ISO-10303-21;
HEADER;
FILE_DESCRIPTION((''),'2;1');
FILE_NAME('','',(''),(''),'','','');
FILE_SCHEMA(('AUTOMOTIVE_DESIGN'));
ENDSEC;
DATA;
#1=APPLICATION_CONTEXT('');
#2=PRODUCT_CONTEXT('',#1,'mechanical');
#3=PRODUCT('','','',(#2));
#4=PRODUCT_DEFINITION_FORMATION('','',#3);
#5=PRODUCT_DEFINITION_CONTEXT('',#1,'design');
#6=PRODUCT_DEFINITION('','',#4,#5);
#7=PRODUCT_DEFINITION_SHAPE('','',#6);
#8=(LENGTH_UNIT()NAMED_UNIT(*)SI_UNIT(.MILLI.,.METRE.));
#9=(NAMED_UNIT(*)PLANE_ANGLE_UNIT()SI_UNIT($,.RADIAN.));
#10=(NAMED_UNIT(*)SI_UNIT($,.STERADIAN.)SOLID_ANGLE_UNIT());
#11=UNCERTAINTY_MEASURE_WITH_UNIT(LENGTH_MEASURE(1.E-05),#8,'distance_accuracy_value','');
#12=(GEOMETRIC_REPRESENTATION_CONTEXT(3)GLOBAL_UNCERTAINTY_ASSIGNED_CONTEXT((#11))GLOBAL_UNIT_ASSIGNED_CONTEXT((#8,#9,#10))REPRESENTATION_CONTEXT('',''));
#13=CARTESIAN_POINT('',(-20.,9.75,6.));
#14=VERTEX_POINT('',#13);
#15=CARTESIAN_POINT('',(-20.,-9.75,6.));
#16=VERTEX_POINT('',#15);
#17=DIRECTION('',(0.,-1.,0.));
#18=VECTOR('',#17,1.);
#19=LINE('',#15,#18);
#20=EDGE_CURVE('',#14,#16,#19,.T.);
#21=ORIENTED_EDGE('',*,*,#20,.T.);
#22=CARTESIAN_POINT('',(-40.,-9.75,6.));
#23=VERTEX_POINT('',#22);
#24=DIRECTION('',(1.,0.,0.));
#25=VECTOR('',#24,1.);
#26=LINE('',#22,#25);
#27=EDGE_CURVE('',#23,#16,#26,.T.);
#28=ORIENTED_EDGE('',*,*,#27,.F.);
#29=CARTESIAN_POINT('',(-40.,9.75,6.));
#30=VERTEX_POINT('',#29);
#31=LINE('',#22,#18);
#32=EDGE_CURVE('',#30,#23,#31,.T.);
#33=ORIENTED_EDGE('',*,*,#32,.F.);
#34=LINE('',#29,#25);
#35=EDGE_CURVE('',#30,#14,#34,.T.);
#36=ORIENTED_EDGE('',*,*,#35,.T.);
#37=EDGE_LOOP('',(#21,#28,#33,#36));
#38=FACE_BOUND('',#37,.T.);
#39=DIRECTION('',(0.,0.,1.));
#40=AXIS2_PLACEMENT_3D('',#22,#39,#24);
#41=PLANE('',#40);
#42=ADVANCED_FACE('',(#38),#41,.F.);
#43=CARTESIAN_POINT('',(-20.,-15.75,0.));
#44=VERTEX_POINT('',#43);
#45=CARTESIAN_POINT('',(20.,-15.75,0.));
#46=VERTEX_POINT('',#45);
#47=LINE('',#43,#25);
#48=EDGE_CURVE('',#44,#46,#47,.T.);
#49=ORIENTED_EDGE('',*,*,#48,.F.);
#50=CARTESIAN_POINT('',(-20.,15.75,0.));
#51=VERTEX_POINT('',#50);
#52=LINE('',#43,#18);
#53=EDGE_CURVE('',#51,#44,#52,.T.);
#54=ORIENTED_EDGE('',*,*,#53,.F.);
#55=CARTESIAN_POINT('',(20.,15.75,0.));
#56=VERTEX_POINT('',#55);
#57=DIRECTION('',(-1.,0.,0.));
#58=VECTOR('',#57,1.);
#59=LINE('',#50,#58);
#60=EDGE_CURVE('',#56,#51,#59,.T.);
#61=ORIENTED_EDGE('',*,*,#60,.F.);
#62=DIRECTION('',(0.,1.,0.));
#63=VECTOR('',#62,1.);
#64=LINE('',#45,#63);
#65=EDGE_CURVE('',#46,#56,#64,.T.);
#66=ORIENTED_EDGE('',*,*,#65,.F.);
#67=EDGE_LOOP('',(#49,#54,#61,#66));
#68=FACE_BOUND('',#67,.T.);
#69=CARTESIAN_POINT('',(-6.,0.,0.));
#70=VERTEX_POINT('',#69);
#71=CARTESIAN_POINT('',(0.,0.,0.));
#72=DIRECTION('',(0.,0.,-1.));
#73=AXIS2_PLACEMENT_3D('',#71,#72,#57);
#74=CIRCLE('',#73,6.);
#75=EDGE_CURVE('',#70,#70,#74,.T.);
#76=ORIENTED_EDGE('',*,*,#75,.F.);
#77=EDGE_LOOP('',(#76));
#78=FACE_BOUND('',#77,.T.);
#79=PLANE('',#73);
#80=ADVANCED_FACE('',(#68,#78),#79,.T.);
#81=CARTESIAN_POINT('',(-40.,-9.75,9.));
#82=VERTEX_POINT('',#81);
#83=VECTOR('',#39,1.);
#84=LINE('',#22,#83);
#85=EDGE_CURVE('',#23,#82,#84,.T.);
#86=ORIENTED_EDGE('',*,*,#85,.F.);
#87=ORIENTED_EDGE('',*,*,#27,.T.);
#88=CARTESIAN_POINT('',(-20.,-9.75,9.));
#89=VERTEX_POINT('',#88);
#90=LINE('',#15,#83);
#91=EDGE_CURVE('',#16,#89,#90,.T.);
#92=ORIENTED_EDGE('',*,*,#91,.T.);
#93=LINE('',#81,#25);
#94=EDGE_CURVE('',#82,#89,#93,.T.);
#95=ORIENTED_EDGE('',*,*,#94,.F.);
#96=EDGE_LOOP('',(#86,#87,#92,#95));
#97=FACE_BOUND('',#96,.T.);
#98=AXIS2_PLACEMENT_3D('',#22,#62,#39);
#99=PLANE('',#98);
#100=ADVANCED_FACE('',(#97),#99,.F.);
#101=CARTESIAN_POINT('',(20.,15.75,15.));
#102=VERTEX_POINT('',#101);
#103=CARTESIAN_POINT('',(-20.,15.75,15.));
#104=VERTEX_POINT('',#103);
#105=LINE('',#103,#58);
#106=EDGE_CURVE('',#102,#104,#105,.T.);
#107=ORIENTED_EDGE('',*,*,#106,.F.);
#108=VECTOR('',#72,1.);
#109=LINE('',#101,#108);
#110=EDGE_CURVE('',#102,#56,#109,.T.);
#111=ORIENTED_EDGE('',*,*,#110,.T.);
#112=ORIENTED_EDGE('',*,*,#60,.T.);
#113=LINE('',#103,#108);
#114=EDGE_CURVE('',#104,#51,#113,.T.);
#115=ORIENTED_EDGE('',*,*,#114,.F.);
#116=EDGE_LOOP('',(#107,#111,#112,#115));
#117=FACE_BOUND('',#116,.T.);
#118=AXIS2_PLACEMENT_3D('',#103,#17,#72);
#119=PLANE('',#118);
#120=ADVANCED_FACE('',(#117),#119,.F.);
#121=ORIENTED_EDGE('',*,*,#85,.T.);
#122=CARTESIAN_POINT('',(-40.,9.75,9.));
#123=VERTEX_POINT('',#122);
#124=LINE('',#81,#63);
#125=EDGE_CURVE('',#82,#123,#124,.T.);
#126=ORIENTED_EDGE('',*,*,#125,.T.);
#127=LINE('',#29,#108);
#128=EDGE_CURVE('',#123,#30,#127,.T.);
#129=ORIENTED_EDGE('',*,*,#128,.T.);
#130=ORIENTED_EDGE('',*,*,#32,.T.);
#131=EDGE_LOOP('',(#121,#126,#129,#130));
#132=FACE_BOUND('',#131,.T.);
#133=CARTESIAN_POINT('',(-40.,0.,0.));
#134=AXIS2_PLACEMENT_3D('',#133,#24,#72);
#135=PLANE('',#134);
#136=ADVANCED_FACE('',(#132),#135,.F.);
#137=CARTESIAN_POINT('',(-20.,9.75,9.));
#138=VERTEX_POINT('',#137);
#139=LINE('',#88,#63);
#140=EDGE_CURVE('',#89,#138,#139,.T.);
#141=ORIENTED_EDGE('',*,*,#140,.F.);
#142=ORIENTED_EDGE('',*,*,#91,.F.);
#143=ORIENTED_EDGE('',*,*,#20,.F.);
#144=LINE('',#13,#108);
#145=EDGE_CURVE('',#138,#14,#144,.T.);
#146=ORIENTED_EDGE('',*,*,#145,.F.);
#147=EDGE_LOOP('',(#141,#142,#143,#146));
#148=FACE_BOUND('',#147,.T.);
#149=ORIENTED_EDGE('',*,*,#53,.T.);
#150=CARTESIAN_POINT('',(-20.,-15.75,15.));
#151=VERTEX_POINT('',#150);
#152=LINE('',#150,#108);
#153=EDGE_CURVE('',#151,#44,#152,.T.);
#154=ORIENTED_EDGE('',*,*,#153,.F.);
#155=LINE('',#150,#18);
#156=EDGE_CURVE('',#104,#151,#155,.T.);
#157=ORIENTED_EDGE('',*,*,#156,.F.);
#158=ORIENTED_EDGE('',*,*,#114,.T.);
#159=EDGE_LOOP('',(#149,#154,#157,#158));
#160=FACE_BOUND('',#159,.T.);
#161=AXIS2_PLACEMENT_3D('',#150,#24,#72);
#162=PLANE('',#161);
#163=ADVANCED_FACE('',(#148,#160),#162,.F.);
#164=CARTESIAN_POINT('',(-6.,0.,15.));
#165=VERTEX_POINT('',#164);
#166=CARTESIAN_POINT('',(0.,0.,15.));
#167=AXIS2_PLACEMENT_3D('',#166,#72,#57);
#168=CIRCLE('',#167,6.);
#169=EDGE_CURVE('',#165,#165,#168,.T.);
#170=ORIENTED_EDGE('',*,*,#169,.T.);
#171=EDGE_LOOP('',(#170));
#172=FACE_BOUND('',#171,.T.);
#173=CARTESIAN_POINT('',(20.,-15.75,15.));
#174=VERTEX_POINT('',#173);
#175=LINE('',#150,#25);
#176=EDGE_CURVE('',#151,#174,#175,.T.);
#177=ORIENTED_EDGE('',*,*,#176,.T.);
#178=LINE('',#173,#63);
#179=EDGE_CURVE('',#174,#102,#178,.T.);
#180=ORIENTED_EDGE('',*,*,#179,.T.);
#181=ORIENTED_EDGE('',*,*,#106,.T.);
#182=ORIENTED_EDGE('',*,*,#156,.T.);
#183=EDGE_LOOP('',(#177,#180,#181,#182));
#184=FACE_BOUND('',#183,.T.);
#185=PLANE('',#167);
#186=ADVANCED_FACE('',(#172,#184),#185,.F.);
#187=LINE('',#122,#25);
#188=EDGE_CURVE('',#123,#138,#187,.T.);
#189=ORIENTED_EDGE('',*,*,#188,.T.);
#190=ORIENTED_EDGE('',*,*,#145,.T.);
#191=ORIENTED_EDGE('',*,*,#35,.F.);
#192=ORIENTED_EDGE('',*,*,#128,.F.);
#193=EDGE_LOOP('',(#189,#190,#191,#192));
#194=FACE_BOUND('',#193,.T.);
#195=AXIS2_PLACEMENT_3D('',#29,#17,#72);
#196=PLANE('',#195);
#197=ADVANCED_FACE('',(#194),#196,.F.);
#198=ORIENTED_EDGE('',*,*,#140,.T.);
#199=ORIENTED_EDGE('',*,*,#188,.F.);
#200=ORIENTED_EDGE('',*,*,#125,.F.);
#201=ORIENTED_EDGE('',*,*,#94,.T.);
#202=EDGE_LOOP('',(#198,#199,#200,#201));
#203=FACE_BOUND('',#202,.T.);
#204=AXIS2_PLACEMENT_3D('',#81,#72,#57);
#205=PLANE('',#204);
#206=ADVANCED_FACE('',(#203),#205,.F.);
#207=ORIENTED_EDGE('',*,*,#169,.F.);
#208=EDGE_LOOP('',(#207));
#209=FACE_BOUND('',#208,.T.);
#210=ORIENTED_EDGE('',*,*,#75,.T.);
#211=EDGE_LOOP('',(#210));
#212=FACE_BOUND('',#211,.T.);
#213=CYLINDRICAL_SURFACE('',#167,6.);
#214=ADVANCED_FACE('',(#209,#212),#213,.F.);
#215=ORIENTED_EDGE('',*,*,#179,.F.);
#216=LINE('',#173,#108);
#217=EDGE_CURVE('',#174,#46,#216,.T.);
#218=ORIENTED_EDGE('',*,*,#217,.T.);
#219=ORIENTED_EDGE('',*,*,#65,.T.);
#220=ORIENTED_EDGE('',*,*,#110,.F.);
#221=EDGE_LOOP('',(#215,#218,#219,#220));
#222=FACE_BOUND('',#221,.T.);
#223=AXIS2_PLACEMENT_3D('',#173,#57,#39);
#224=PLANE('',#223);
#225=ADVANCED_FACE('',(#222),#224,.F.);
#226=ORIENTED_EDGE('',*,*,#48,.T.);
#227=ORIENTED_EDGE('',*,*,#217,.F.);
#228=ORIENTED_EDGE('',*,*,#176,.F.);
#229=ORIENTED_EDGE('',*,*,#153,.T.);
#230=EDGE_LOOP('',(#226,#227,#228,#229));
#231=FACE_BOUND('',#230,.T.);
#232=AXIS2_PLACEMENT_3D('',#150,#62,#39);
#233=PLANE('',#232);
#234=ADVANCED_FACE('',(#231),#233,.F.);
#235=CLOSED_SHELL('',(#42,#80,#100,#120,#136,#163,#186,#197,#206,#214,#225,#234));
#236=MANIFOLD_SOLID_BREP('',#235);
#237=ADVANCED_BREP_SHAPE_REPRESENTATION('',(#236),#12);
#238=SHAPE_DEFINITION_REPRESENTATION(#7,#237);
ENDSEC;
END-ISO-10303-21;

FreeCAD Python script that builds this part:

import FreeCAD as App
import Part
import Sketcher
Q = App.Units.Quantity

doc = App.newDocument("Part")
body = doc.addObject("PartDesign::Body", "Body")

sketch1 = body.newObject("Sketcher::SketchObject", "Sketch")
sketch1.AttachmentSupport = (doc.getObject("XY_Plane"), [""])
sketch1.MapMode = "FlatFace"
sketch1.addGeometry([
    Part.LineSegment(App.Vector(-20, 16, 0), App.Vector(-20, -16, 0)),
    Part.LineSegment(App.Vector(-20, -16, 0), App.Vector(20, -16, 0)),
    Part.LineSegment(App.Vector(20, -16, 0), App.Vector(20, 16, 0)),
    Part.LineSegment(App.Vector(20, 16, 0), App.Vector(-20, 16, 0)),
], False)
sketch1.addConstraint([
    Sketcher.Constraint("Coincident", 0, 2, 1, 1),
    Sketcher.Constraint("Coincident", 1, 2, 2, 1),
    Sketcher.Constraint("Coincident", 2, 2, 3, 1),
    Sketcher.Constraint("Coincident", 3, 2, 0, 1),
    Sketcher.Constraint("Vertical", 0),
    Sketcher.Constraint("Horizontal", 1),
    Sketcher.Constraint("Vertical", 2),
    Sketcher.Constraint("Horizontal", 3),
    Sketcher.Constraint("Symmetric", 0, 2, 2, 2, -1, 1),
    Sketcher.Constraint("DistanceX", 1, 1, 1, 2, Q("40 mm")),
    Sketcher.Constraint("DistanceY", 0, 2, 0, 1, Q("31.5 mm")),
])
pad1 = body.newObject("PartDesign::Pad", "Pad")
pad1.Profile = sketch1
pad1.Length = 15

sketch2 = body.newObject("Sketcher::SketchObject", "Sketch001")
sketch2.AttachmentSupport = (doc.getObject("YZ_Plane"), [""])
sketch2.MapMode = "FlatFace"
sketch2.AttachmentOffset = App.Placement(App.Vector(0, 0, -20), App.Rotation())
sketch2.addGeometry([
    Part.LineSegment(App.Vector(9.8, 6, 0), App.Vector(-9.8, 6, 0)),
    Part.LineSegment(App.Vector(-9.8, 6, 0), App.Vector(-9.8, 9, 0)),
    Part.LineSegment(App.Vector(-9.8, 9, 0), App.Vector(9.8, 9, 0)),
    Part.LineSegment(App.Vector(9.8, 9, 0), App.Vector(9.8, 6, 0)),
], False)
sketch2.addConstraint([
    Sketcher.Constraint("Coincident", 0, 2, 1, 1),
    Sketcher.Constraint("Coincident", 1, 2, 2, 1),
    Sketcher.Constraint("Coincident", 2, 2, 3, 1),
    Sketcher.Constraint("Coincident", 3, 2, 0, 1),
    Sketcher.Constraint("Horizontal", 0),
    Sketcher.Constraint("Vertical", 1),
    Sketcher.Constraint("Horizontal", 2),
    Sketcher.Constraint("Vertical", 3),
    Sketcher.Constraint("DistanceY", 1, 1, 1, 2, Q("3 mm")),
    Sketcher.Constraint("DistanceX", 0, 2, 0, 1, Q("19.5 mm")),
    Sketcher.Constraint("DistanceY", -1, 1, 0, 2, Q("6 mm")),
    Sketcher.Constraint("DistanceX", 0, 2, -1, 1, Q("9.75 mm")),
])
pad2 = body.newObject("PartDesign::Pad", "Pad001")
pad2.Profile = sketch2
pad2.Length = 20
pad2.Reversed = True

sketch3 = body.newObject("Sketcher::SketchObject", "Sketch002")
sketch3.AttachmentSupport = (doc.getObject("XY_Plane"), [""])
sketch3.MapMode = "FlatFace"
sketch3.addGeometry(Part.Circle(App.Vector(0, 0, 0), App.Vector(0, 0, 1), 6), False)
sketch3.addConstraint([
    Sketcher.Constraint("Coincident", 0, 3, -1, 1),
    Sketcher.Constraint("Diameter", 0, Q("12 mm")),
])
pocket1 = body.newObject("PartDesign::Pocket", "Pocket")
pocket1.Profile = sketch3
pocket1.Type = "ThroughAll"
pocket1.Reversed = True

doc.recompute()
